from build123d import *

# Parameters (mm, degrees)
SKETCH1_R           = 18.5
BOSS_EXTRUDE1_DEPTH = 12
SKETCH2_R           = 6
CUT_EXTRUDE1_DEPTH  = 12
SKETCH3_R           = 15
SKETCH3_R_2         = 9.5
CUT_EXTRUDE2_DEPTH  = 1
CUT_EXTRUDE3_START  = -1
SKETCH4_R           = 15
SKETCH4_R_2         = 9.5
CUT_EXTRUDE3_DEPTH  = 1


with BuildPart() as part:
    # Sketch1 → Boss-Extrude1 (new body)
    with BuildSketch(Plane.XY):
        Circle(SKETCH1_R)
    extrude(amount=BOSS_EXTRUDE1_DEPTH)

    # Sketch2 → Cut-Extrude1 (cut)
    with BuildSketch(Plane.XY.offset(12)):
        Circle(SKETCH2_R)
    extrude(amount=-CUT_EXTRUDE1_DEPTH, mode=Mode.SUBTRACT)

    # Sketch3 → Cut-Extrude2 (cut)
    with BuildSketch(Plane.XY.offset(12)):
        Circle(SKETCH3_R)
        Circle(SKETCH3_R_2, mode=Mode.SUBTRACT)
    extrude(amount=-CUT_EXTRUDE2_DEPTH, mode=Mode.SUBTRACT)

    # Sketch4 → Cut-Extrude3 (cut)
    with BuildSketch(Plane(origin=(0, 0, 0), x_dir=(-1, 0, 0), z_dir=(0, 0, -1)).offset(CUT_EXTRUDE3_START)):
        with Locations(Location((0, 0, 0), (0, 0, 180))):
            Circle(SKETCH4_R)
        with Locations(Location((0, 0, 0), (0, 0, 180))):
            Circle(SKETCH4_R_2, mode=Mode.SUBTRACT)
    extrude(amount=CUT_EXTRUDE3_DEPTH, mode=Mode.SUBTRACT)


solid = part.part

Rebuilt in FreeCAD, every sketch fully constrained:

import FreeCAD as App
import Part
import Sketcher
from FreeCAD import Vector

doc = App.newDocument("Part")
body = doc.addObject("PartDesign::Body", "Body")

# Sketch on XY plane
sketch1 = doc.addObject("Sketcher::SketchObject", "Sketch")
body.addObject(sketch1)
sketch1.AttachmentSupport = (doc.XY_Plane, [""])
sketch1.MapMode = "FlatFace"
sketch1.addGeometry(Part.Circle(Vector(0, 0, 0), Vector(0, 0, 1), 18), False)
sketch1.addConstraint([
    Sketcher.Constraint("Coincident", 0, 3, -1, 1),
    Sketcher.Constraint("Diameter", 0, 37.0),
])
pad1 = doc.addObject("PartDesign::Pad", "Pad")
body.addObject(pad1)
pad1.Profile = sketch1
pad1.Length = 12

# Sketch on XY plane
sketch2 = doc.addObject("Sketcher::SketchObject", "Sketch001")
body.addObject(sketch2)
sketch2.AttachmentSupport = (doc.XY_Plane, [""])
sketch2.MapMode = "FlatFace"
sketch2.AttachmentOffset = App.Placement(Vector(0, 0, 12), App.Rotation())
sketch2.addGeometry(Part.Circle(Vector(0, 0, 0), Vector(0, 0, 1), 6), False)
sketch2.addConstraint([
    Sketcher.Constraint("Coincident", 0, 3, -1, 1),
    Sketcher.Constraint("Diameter", 0, 12.0),
])
pocket1 = doc.addObject("PartDesign::Pocket", "Pocket")
body.addObject(pocket1)
pocket1.Profile = sketch2
pocket1.Length = 12

# Sketch on XY plane
sketch3 = doc.addObject("Sketcher::SketchObject", "Sketch002")
body.addObject(sketch3)
sketch3.AttachmentSupport = (doc.XY_Plane, [""])
sketch3.MapMode = "FlatFace"
sketch3.AttachmentOffset = App.Placement(Vector(0, 0, 12), App.Rotation())
sketch3.addGeometry([
    Part.Circle(Vector(0, 0, 0), Vector(0, 0, 1), 15),
    Part.Circle(Vector(0, 0, 0), Vector(0, 0, 1), 10),
], False)
sketch3.addConstraint([
    Sketcher.Constraint("Coincident", 0, 3, -1, 1),
    Sketcher.Constraint("Coincident", 1, 3, -1, 1),
    Sketcher.Constraint("Diameter", 0, 30.0),
    Sketcher.Constraint("Diameter", 1, 19.0),
])
pocket2 = doc.addObject("PartDesign::Pocket", "Pocket001")
body.addObject(pocket2)
pocket2.Profile = sketch3
pocket2.Length = 1

# Sketch on XY plane
sketch4 = doc.addObject("Sketcher::SketchObject", "Sketch003")
body.addObject(sketch4)
sketch4.AttachmentSupport = (doc.XY_Plane, [""])
sketch4.MapMode = "FlatFace"
sketch4.AttachmentOffset = App.Placement(Vector(0, 0, 1), App.Rotation())
sketch4.addGeometry([
    Part.Circle(Vector(0, 0, 0), Vector(0, 0, 1), 15),
    Part.Circle(Vector(0, 0, 0), Vector(0, 0, 1), 10),
], False)
sketch4.addConstraint([
    Sketcher.Constraint("Coincident", 0, 3, -1, 1),
    Sketcher.Constraint("Coincident", 1, 3, -1, 1),
    Sketcher.Constraint("Diameter", 0, 30.0),
    Sketcher.Constraint("Diameter", 1, 19.0),
])
pocket3 = doc.addObject("PartDesign::Pocket", "Pocket002")
body.addObject(pocket3)
pocket3.Profile = sketch4
pocket3.Length = 1

doc.recompute()
